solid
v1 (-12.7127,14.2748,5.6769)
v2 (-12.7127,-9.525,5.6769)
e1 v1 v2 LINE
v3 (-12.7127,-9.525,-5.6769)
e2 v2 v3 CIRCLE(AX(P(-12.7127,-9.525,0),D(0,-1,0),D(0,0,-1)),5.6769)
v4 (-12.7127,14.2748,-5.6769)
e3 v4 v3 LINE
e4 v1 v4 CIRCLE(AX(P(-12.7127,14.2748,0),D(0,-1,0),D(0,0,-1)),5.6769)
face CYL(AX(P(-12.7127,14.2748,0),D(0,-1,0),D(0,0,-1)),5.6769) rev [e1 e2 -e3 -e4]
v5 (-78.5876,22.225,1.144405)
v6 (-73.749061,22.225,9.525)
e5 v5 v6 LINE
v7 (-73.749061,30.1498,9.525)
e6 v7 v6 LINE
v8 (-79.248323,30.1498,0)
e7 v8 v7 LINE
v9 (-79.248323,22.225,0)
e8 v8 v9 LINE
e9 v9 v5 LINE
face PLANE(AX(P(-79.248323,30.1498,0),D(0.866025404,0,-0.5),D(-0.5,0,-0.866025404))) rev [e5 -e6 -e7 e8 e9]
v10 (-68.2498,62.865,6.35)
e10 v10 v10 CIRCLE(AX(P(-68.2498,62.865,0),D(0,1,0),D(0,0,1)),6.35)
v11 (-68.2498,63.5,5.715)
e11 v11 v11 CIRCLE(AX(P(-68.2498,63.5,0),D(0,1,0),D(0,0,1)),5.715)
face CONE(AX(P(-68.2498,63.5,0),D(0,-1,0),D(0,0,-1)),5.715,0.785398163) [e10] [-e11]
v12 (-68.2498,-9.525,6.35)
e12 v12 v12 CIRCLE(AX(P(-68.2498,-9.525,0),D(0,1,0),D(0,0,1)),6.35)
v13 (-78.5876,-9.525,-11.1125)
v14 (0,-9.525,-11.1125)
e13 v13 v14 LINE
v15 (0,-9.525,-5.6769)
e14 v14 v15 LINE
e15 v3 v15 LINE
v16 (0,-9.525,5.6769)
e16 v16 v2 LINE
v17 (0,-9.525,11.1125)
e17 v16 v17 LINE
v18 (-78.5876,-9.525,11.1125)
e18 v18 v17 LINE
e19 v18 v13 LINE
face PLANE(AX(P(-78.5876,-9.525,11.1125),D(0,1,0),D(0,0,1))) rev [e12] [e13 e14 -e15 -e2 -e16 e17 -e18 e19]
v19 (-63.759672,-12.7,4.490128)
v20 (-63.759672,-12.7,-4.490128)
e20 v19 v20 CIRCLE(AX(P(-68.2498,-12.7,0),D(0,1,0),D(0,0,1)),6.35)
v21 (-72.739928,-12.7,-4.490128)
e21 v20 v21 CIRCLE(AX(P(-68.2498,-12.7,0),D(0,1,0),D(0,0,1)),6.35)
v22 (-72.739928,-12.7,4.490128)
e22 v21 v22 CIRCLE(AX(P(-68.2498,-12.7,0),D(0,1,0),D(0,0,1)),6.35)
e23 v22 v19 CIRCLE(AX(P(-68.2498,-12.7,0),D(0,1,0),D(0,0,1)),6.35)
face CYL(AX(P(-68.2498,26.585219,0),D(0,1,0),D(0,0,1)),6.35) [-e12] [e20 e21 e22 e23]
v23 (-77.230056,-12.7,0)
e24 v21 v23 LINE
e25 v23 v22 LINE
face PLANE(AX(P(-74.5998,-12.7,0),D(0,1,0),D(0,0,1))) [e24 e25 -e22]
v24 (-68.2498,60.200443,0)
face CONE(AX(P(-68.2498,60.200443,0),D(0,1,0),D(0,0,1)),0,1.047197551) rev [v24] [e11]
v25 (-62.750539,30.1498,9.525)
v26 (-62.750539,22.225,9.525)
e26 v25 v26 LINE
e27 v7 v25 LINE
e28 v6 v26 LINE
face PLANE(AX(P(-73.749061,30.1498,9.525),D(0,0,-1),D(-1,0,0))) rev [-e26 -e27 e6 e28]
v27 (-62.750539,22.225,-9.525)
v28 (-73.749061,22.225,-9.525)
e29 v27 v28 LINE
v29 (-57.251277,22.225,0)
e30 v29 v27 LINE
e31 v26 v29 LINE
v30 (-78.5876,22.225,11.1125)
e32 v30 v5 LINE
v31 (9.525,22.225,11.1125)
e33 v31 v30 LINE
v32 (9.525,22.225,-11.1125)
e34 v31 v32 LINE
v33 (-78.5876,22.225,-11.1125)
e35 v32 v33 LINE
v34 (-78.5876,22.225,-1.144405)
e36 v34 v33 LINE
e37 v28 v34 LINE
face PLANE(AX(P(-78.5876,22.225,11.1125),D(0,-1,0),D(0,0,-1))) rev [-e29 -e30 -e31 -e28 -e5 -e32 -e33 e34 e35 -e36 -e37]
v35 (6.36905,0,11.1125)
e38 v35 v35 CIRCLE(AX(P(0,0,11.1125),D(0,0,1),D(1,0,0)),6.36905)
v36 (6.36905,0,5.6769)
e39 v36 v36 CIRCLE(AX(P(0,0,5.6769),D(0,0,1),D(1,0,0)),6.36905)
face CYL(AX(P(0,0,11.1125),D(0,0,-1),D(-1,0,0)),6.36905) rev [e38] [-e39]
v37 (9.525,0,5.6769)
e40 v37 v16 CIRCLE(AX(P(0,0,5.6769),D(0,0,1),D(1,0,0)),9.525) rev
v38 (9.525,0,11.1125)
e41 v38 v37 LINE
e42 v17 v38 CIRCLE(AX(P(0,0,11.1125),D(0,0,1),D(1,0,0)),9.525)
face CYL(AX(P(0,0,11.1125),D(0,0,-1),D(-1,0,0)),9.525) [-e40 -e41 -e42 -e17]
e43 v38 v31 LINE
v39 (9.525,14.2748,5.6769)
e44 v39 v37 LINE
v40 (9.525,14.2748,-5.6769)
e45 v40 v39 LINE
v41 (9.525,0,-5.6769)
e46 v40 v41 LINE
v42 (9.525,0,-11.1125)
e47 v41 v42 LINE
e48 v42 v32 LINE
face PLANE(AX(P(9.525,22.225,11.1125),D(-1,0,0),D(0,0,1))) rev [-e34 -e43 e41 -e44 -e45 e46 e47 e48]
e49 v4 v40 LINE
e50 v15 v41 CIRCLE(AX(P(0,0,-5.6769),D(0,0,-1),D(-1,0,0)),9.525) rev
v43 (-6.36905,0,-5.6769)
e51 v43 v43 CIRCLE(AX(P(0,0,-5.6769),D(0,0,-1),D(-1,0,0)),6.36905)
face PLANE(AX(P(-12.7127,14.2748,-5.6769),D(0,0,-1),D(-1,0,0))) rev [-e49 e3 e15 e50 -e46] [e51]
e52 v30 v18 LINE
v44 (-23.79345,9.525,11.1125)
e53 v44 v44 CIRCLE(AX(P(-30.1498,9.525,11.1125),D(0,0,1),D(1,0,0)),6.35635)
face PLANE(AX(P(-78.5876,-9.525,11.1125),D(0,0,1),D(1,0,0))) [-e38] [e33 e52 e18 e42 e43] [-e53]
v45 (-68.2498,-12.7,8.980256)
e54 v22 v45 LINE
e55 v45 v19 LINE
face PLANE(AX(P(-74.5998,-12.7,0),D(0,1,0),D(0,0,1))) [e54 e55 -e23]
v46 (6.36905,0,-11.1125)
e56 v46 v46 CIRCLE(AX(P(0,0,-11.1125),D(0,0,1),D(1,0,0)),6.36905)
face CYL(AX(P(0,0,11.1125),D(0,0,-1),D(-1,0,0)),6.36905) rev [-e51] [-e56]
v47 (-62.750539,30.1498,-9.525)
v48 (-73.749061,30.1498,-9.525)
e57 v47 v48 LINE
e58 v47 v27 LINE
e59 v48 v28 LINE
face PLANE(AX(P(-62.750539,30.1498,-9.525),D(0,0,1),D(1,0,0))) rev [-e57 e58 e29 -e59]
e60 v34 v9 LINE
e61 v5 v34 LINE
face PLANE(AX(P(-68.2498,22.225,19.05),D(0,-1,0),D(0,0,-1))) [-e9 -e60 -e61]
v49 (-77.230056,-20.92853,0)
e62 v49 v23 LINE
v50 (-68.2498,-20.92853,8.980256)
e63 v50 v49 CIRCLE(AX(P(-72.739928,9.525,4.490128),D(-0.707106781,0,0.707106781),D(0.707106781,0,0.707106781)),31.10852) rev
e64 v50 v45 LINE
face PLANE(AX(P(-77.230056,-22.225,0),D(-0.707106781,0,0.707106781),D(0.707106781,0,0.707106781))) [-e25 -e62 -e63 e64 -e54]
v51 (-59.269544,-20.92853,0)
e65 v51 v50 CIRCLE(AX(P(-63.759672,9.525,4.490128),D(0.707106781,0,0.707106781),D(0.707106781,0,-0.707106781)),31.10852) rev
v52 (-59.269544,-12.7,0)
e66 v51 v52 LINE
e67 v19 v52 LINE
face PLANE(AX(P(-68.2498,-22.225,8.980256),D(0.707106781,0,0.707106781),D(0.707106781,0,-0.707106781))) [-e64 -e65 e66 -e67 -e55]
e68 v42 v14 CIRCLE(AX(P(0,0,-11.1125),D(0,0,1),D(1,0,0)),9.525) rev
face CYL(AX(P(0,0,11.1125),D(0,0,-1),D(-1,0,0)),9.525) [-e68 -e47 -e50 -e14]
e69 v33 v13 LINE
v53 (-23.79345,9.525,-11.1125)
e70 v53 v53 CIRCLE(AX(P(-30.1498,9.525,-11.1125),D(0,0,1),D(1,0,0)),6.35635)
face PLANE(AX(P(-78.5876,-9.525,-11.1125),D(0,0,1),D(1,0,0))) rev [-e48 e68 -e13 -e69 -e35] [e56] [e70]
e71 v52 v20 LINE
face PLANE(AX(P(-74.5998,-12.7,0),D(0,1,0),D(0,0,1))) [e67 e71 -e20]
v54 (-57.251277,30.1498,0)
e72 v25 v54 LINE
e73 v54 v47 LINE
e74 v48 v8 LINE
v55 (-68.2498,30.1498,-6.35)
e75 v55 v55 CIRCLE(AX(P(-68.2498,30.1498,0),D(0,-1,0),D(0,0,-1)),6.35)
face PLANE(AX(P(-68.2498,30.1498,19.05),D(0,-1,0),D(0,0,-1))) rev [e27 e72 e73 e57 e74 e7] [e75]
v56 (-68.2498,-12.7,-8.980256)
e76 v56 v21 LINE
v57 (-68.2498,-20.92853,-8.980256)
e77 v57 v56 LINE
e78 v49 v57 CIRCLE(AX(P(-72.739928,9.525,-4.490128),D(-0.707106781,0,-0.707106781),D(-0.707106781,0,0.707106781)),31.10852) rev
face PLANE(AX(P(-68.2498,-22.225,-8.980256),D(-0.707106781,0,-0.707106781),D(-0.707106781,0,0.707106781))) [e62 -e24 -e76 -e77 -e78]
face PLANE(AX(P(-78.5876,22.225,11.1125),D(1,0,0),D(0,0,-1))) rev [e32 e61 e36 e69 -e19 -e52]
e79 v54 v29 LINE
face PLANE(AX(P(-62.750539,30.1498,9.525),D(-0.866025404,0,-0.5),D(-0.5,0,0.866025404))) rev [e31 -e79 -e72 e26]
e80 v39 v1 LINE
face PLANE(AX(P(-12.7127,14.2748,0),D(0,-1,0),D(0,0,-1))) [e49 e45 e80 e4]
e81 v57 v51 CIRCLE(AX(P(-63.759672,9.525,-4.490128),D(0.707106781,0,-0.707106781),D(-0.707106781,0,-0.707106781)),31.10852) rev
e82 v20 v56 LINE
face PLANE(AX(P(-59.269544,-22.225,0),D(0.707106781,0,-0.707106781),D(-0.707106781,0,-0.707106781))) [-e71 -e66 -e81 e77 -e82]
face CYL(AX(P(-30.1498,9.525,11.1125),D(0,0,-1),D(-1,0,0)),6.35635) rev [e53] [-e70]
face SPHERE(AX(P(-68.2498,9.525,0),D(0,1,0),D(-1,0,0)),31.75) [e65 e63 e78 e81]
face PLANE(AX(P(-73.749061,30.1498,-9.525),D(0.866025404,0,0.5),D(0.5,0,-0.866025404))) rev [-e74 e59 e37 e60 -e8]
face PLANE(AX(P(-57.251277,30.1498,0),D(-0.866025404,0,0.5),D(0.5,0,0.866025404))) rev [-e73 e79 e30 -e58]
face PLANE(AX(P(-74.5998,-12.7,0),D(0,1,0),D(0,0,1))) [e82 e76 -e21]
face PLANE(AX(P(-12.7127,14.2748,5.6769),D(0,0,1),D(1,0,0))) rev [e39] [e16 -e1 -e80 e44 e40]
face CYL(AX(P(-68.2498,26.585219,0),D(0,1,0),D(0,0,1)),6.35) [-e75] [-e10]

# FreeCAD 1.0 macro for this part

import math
import FreeCAD as App
import Part
import Sketcher
from FreeCAD import Vector
Q = App.Units.Quantity


def edges_at(feature, points):
    """Names of the edges that pass closest to the given points."""
    edges = feature.Shape.Edges
    near = lambda p: min(range(len(edges)), key=lambda i: edges[i].distToShape(Part.Vertex(*p))[0])
    return sorted({f"Edge{near(p) + 1}" for p in points})


def add_polygon(sketch, points):
    """Adds a closed chain of lines whose ends are joined by coincident constraints."""
    first, n = sketch.GeometryCount, len(points)
    for a, b in zip(points, points[1:] + points[:1]):
        sketch.addGeometry(Part.LineSegment(App.Vector(*a, 0), App.Vector(*b, 0)), False)
    for i in range(n):
        sketch.addConstraint(Sketcher.Constraint("Coincident", first + i, 2, first + (i + 1) % n, 1))

doc = App.newDocument("Part")
body = doc.addObject("PartDesign::Body", "Body")

# Sketch on XY plane
sketch1 = body.newObject("Sketcher::SketchObject", "Sketch")
sketch1.AttachmentSupport = (doc.getObject("XY_Plane"), [""])
sketch1.MapMode = "FlatFace"
add_polygon(sketch1, [(-79, 22), (-79, -10), (10, -10), (10, 22)])  # lines 0-3
sketch1.addGeometry(Part.Circle(Vector(0, 0, 0), Vector(0, 0, 1), 6), False)  # 4
sketch1.addGeometry(Part.Circle(Vector(-30, 10, 0), Vector(0, 0, 1), 6), False)  # 5
sketch1.addConstraint(Sketcher.Constraint("Vertical", 0))
sketch1.addConstraint(Sketcher.Constraint("Horizontal", 1))
sketch1.addConstraint(Sketcher.Constraint("Vertical", 2))
sketch1.addConstraint(Sketcher.Constraint("Horizontal", 3))
sketch1.addConstraint(Sketcher.Constraint("Coincident", 4, 3, -1, 1))
sketch1.addConstraint(Sketcher.Constraint("Diameter", 4, Q("0.5015 in")))
sketch1.addConstraint(Sketcher.Constraint("Diameter", 5, Q("0.5005 in")))
sketch1.addConstraint(Sketcher.Constraint("DistanceY", 0, 2, 0, 1, Q("1.25 in")))
sketch1.addConstraint(Sketcher.Constraint("DistanceY", 5, 3, 2, 2, Q("0.5 in")))
sketch1.addConstraint(Sketcher.Constraint("DistanceX", 1, 1, 1, 2, Q("3.469 in")))
sketch1.addConstraint(Sketcher.Constraint("DistanceX", 5, 3, -1, 1, Q("1.187 in")))
sketch1.addConstraint(Sketcher.Constraint("DistanceY", -1, 1, 5, 3, Q("0.375 in")))
sketch1.addConstraint(Sketcher.Constraint("DistanceX", 0, 2, -1, 1, Q("3.094 in")))
pad1 = body.newObject("PartDesign::Pad", "Pad")
pad1.Profile = sketch1
pad1.Length = Q("0.875 in")
pad1.Midplane = True

# Sketch on XZ plane
sketch2 = body.newObject("Sketcher::SketchObject", "Sketch001")
sketch2.AttachmentSupport = (doc.getObject("XZ_Plane"), [""])
sketch2.MapMode = "FlatFace"
sketch2.AttachmentOffset = App.Placement(Vector(0, 0, 0.375 * 25.4), App.Rotation())
sketch2.addGeometry(Part.LineSegment(Vector(10, 6, 0), Vector(-13, 6, 0)), False)
sketch2.addGeometry(Part.ArcOfCircle(Part.Circle(Vector(-13, 0, 0), Vector(0, 0, 1), 6), math.radians(90), math.radians(270)), False)
sketch2.addGeometry(Part.LineSegment(Vector(-13, -6, 0), Vector(10, -6, 0)), False)
sketch2.addGeometry(Part.LineSegment(Vector(10, -6, 0), Vector(10, 6, 0)), False)
sketch2.addConstraint(Sketcher.Constraint("Tangent", 0, 2, 1, 1))
sketch2.addConstraint(Sketcher.Constraint("Tangent", 1, 2, 2, 1))
sketch2.addConstraint(Sketcher.Constraint("Coincident", 2, 2, 3, 1))
sketch2.addConstraint(Sketcher.Constraint("Coincident", 3, 2, 0, 1))
sketch2.addConstraint(Sketcher.Constraint("Horizontal", 0))
sketch2.addConstraint(Sketcher.Constraint("Horizontal", 2))
sketch2.addConstraint(Sketcher.Constraint("Vertical", 3))
sketch2.addConstraint(Sketcher.Constraint("PointOnObject", 1, 3, -1))
sketch2.addConstraint(Sketcher.Constraint("Radius", 1, Q("0.2235 in")))
sketch2.addConstraint(Sketcher.Constraint("DistanceX", 0, 2, 0, 1, Q("0.8755 in")))
sketch2.addConstraint(Sketcher.Constraint("DistanceX", -1, 1, 2, 2, Q("0.375 in")))
pocket1 = body.newObject("PartDesign::Pocket", "Pocket")
pocket1.Profile = sketch2
pocket1.Length = Q("0.937 in")
doc.recompute()

fillet = body.newObject("PartDesign::Fillet", "Fillet")
fillet.Base = (pocket1, edges_at(pocket1, [(9.525, -9.525, -8.395), (9.525, -9.525, 8.395)]))
fillet.Radius = Q("0.375 in")

# Sketch on XZ plane
sketch3 = body.newObject("Sketcher::SketchObject", "Sketch002")
sketch3.AttachmentSupport = (doc.getObject("XZ_Plane"), [""])
sketch3.MapMode = "FlatFace"
sketch3.AttachmentOffset = App.Placement(Vector(0, 0, -0.875 * 25.4), App.Rotation())
add_polygon(sketch3, [(-57, 0), (-63, -10), (-74, -10), (-79, 0), (-74, 10), (-63, 10)])  # lines 0-5
sketch3.addConstraint(Sketcher.Constraint("Horizontal", 1))
sketch3.addConstraint(Sketcher.Constraint("Horizontal", 4))
sketch3.addConstraint(Sketcher.Constraint("Symmetric", 1, 2, 3, 2, -1))
sketch3.addConstraint(Sketcher.Constraint("PointOnObject", 2, 2, -1))
sketch3.addConstraint(Sketcher.Constraint("PointOnObject", 5, 2, -1))
sketch3.addConstraint(Sketcher.Constraint("Parallel", 0, 3))
sketch3.addConstraint(Sketcher.Constraint("Parallel", 2, 5))
sketch3.addConstraint(Sketcher.Constraint("Angle", 0, Q("-120 deg")))
sketch3.addConstraint(Sketcher.Constraint("DistanceY", 1, 2, 3, 2, Q("0.75 in")))
sketch3.addConstraint(Sketcher.Constraint("DistanceX", 1, 2, 1, 1, 10.998523))
sketch3.addConstraint(Sketcher.Constraint("DistanceX", 0, 2, -1, 1, 62.750539))
pad2 = body.newObject("PartDesign::Pad", "Pad001")
pad2.Profile = sketch3
pad2.Length = Q("0.312 in")
pad2.Reversed = True

# Sketch on XY plane
sketch4 = body.newObject("Sketcher::SketchObject", "Sketch003")
sketch4.AttachmentSupport = (doc.getObject("XY_Plane"), [""])
sketch4.MapMode = "FlatFace"
sketch4.addGeometry(Part.LineSegment(Vector(-68.2, 60.2, 0), Vector(-74, 63.5, 0)), False)
sketch4.addGeometry(Part.LineSegment(Vector(-74, 63.5, 0), Vector(-74.6, 62.9, 0)), False)
sketch4.addGeometry(Part.LineSegment(Vector(-74.6, 62.9, 0), Vector(-74.6, -12.7, 0)), False)
sketch4.addGeometry(Part.LineSegment(Vector(-74.6, -12.7, 0), Vector(-90.2, -12.7, 0)), False)
sketch4.addGeometry(Part.LineSegment(Vector(-90.2, -12.7, 0), Vector(-90.2, -13.5, 0)), False)
sketch4.addGeometry(Part.ArcOfCircle(Part.Circle(Vector(-68.2, 9.5, 0), Vector(0, 0, 1), 31.7), math.radians(-134), math.radians(-90)), False)
sketch4.addGeometry(Part.LineSegment(Vector(-68.2, -22.2, 0), Vector(-68.2, 60.2, 0)), False)
sketch4.addGeometry(Part.LineSegment(Vector(-68.2, 63.5, 0), Vector(-68.2, -22.2, 0)), True)  # axis
sketch4.addConstraint(Sketcher.Constraint("Coincident", 0, 2, 1, 1))
sketch4.addConstraint(Sketcher.Constraint("Coincident", 1, 2, 2, 1))
sketch4.addConstraint(Sketcher.Constraint("Coincident", 2, 2, 3, 1))
sketch4.addConstraint(Sketcher.Constraint("Coincident", 3, 2, 4, 1))
sketch4.addConstraint(Sketcher.Constraint("Coincident", 4, 2, 5, 1))
sketch4.addConstraint(Sketcher.Constraint("Coincident", 5, 2, 6, 1))
sketch4.addConstraint(Sketcher.Constraint("Coincident", 6, 2, 0, 1))
sketch4.addConstraint(Sketcher.Constraint("Vertical", 2))
sketch4.addConstraint(Sketcher.Constraint("Horizontal", 3))
sketch4.addConstraint(Sketcher.Constraint("Vertical", 4))
sketch4.addConstraint(Sketcher.Constraint("Vertical", 6))
sketch4.addConstraint(Sketcher.Constraint("Vertical", 7))
sketch4.addConstraint(Sketcher.Constraint("Coincident", 7, 2, 5, 2))
sketch4.addConstraint(Sketcher.Constraint("Horizontal", 0, 2, 7, 1))
sketch4.addConstraint(Sketcher.Constraint("Radius", 5, Q("1.25 in")))
sketch4.addConstraint(Sketcher.Constraint("Angle", 0, Q("150 deg")))
sketch4.addConstraint(Sketcher.Constraint("Angle", 1, Q("-135 deg")))
sketch4.addConstraint(Sketcher.Constraint("DistanceY", 2, 2, 0, 2, Q("3 in")))
sketch4.addConstraint(Sketcher.Constraint("DistanceY", 4, 2, 4, 1, Q("0.03 in")))
sketch4.addConstraint(Sketcher.Constraint("DistanceY", -1, 1, 0, 2, Q("2.5 in")))
sketch4.addConstraint(Sketcher.Constraint("DistanceY", 5, 3, 1, 2, Q("2.1 in")))
sketch4.addConstraint(Sketcher.Constraint("DistanceY", 2, 2, 2, 1, Q("2.975 in")))
sketch4.addConstraint(Sketcher.Constraint("DistanceX", 1, 2, 5, 3, Q("0.25 in")))
sketch4.addConstraint(Sketcher.Constraint("DistanceX", 2, 2, 5, 2, Q("0.25 in")))
sketch4.addConstraint(Sketcher.Constraint("DistanceX", 5, 3, -1, 1, Q("2.687 in")))
revolution = body.newObject("PartDesign::Revolution", "Revolution")
revolution.Profile = sketch4
revolution.ReferenceAxis = (sketch4, ["Axis0"])
revolution.Angle = 360

# Sketch on XZ plane
sketch5 = body.newObject("Sketcher::SketchObject", "Sketch004")
sketch5.AttachmentSupport = (doc.getObject("XZ_Plane"), [""])
sketch5.MapMode = "FlatFace"
sketch5.AttachmentOffset = App.Placement(Vector(0, 0, 0.5 * 25.4), App.Rotation())
sketch5.addGeometry(Part.Circle(Vector(-68, 0, 0), Vector(0, 0, 1), 22), False)  # 0
add_polygon(sketch5, [(-77, 0), (-68, -9), (-59, 0), (-68, 9)])  # lines 1-4
sketch5.addConstraint(Sketcher.Constraint("Symmetric", 1, 2, 3, 2, -1))
sketch5.addConstraint(Sketcher.Constraint("PointOnObject", 0, 3, -1))
sketch5.addConstraint(Sketcher.Constraint("PointOnObject", 2, 2, -1))
sketch5.addConstraint(Sketcher.Constraint("PointOnObject", 4, 2, -1))
sketch5.addConstraint(Sketcher.Constraint("Perpendicular", 1, 2))
sketch5.addConstraint(Sketcher.Constraint("Perpendicular", 2, 3))
sketch5.addConstraint(Sketcher.Constraint("Vertical", 0, 3, 1, 2))
sketch5.addConstraint(Sketcher.Constraint("Distance", 1, Q("0.5 in")))
sketch5.addConstraint(Sketcher.Constraint("Diameter", 0, Q("1.7244999 in")))
sketch5.addConstraint(Sketcher.Constraint("DistanceX", 0, 3, -1, 1, Q("2.687 in")))
pocket2 = body.newObject("PartDesign::Pocket", "Pocket001")
pocket2.Profile = sketch5
pocket2.Type = "ThroughAll"
pocket2.Reversed = True

doc.recompute()
